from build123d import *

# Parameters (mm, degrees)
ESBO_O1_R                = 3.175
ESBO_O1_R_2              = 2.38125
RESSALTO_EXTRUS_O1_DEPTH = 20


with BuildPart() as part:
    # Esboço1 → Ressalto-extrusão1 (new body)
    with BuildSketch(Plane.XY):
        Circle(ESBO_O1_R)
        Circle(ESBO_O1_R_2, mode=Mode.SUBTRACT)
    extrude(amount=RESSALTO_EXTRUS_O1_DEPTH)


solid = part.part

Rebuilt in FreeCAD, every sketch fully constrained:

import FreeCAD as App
import Part
import Sketcher

V = App.Vector
Q = App.Units.Quantity

doc = App.newDocument("Part")
body = doc.addObject("PartDesign::Body", "Body")

sketch1 = body.newObject("Sketcher::SketchObject", "Sketch")
sketch1.AttachmentSupport = (doc.getObject("XY_Plane"), [""])
sketch1.MapMode = "FlatFace"
sketch1.addGeometry([
    Part.Circle(V(0, 0, 0), V(0, 0, 1), 3.2),
    Part.Circle(V(0, 0, 0), V(0, 0, 1), 2.4),
], False)
sketch1.addConstraint([
    Sketcher.Constraint("Coincident", 0, 3, -1, 1),
    Sketcher.Constraint("Coincident", 1, 3, -1, 1),
    Sketcher.Constraint("Diameter", 0, Q("0.25 in")),
    Sketcher.Constraint("Diameter", 1, Q("0.1875 in")),
])
pad1 = body.newObject("PartDesign::Pad", "Pad")
pad1.Profile = sketch1
pad1.Length = 20

doc.recompute()
